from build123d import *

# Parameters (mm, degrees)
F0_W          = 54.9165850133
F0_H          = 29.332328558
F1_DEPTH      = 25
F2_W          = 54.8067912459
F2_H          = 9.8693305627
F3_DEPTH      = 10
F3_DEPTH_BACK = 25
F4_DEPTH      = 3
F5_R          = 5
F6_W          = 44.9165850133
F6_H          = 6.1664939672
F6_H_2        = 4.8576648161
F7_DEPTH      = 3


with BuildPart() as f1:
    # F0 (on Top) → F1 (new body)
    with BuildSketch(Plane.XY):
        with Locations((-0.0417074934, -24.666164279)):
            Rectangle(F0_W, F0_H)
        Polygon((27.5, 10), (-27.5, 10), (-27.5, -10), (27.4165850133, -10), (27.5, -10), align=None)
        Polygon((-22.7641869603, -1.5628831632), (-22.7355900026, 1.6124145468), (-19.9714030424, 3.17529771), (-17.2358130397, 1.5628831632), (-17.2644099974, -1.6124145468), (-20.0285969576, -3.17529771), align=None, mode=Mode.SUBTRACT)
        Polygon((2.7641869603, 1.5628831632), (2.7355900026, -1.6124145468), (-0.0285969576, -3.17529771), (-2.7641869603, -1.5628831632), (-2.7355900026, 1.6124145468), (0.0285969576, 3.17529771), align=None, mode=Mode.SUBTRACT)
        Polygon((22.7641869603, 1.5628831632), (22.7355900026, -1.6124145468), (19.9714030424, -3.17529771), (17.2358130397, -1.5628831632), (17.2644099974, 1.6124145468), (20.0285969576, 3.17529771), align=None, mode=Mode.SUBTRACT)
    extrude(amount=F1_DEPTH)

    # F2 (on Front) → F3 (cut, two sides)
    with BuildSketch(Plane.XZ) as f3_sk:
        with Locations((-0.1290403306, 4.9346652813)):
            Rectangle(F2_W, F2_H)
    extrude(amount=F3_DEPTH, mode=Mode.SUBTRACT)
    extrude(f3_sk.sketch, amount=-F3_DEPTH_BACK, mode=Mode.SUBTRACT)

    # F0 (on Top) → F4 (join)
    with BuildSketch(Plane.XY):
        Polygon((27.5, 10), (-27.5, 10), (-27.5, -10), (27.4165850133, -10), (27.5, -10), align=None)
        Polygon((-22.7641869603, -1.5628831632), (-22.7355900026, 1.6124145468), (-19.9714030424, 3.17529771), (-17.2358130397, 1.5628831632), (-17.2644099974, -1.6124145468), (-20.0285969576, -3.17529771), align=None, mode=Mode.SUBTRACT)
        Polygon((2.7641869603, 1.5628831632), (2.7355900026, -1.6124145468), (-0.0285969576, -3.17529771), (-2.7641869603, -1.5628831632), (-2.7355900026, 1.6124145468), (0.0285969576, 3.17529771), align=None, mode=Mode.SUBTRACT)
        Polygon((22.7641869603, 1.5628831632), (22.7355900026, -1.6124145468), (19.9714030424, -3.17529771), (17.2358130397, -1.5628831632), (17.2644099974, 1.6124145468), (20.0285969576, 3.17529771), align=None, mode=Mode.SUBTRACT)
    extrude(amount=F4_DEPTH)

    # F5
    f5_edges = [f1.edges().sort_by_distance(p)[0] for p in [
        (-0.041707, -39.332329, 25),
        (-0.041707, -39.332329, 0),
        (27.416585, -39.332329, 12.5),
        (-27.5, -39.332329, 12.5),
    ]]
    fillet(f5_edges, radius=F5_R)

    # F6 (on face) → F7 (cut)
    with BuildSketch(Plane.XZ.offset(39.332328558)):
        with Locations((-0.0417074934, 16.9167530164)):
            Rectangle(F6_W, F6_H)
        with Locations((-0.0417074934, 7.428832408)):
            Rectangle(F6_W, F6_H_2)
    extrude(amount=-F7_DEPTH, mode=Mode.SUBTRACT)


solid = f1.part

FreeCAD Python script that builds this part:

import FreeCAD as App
import Part
import Sketcher

V = App.Vector


def edges_at(feature, points):
    """Names of the edges that pass closest to the given points."""
    edges = feature.Shape.Edges
    near = lambda p: min(range(len(edges)), key=lambda i: edges[i].distToShape(Part.Vertex(*p))[0])
    return sorted({f"Edge{near(p) + 1}" for p in points})

doc = App.newDocument("Part")
params = doc.addObject("Spreadsheet::Sheet", "Params")
for row, (alias, value) in enumerate([
    ("sketch1_width", "55 mm"),
    ("sketch1_height", "20 mm"),
    ("pad1_length", "25 mm"),
    ("pocket1_length", "10 mm"),
    ("pocket1_length2", "25 mm"),
    ("sketch3_width", "55 mm"),
    ("sketch3_height", "20 mm"),
    ("pad2_length", "3 mm"),
    ("fillet_radius", "5 mm"),
    ("pocket2_length", "3 mm"),
], start=1):
    params.set(f"A{row}", alias)
    params.set(f"B{row}", "=" + value)
    params.setAlias(f"B{row}", alias)

body = doc.addObject("PartDesign::Body", "Body")

# Sketch on XY plane
sketch1 = body.newObject("Sketcher::SketchObject", "Sketch")
sketch1.AttachmentSupport = (doc.getObject("XY_Plane"), [""])
sketch1.MapMode = "FlatFace"
sketch1.addGeometry([
    Part.LineSegment(V(-27.5, -10, 0), V(-27.5, -39.33, 0)),  # 0
    Part.LineSegment(V(-27.5, -39.33, 0), V(27.42, -39.33, 0)),  # 1
    Part.LineSegment(V(27.42, -39.33, 0), V(27.42, -10, 0)),  # 2
    Part.LineSegment(V(27.42, -10, 0), V(27.5, -10, 0)),  # 3
    Part.LineSegment(V(27.5, -10, 0), V(27.5, 10, 0)),  # 4
    Part.LineSegment(V(27.5, 10, 0), V(-27.5, 10, 0)),  # 5
    Part.LineSegment(V(-27.5, 10, 0), V(-27.5, -10, 0)),  # 6
    Part.LineSegment(V(-20.03, -3.18, 0), V(-22.76, -1.56, 0)),  # 7
    Part.LineSegment(V(-22.76, -1.56, 0), V(-22.74, 1.61, 0)),  # 8
    Part.LineSegment(V(-22.74, 1.61, 0), V(-19.97, 3.18, 0)),  # 9
    Part.LineSegment(V(-19.97, 3.18, 0), V(-17.24, 1.56, 0)),  # 10
    Part.LineSegment(V(-17.24, 1.56, 0), V(-17.26, -1.61, 0)),  # 11
    Part.LineSegment(V(-17.26, -1.61, 0), V(-20.03, -3.18, 0)),  # 12
    Part.LineSegment(V(0.03, 3.18, 0), V(2.76, 1.56, 0)),  # 13
    Part.LineSegment(V(2.76, 1.56, 0), V(2.74, -1.61, 0)),  # 14
    Part.LineSegment(V(2.74, -1.61, 0), V(-0.03, -3.18, 0)),  # 15
    Part.LineSegment(V(-0.03, -3.18, 0), V(-2.76, -1.56, 0)),  # 16
    Part.LineSegment(V(-2.76, -1.56, 0), V(-2.74, 1.61, 0)),  # 17
    Part.LineSegment(V(-2.74, 1.61, 0), V(0.03, 3.18, 0)),  # 18
    Part.LineSegment(V(20.03, 3.18, 0), V(22.76, 1.56, 0)),  # 19
    Part.LineSegment(V(22.76, 1.56, 0), V(22.74, -1.61, 0)),  # 20
    Part.LineSegment(V(22.74, -1.61, 0), V(19.97, -3.18, 0)),  # 21
    Part.LineSegment(V(19.97, -3.18, 0), V(17.24, -1.56, 0)),  # 22
    Part.LineSegment(V(17.24, -1.56, 0), V(17.26, 1.61, 0)),  # 23
    Part.LineSegment(V(17.26, 1.61, 0), V(20.03, 3.18, 0)),  # 24
], False)
sketch1.addConstraint([
    Sketcher.Constraint("Coincident", 0, 2, 1, 1),
    Sketcher.Constraint("Coincident", 1, 2, 2, 1),
    Sketcher.Constraint("Coincident", 2, 2, 3, 1),
    Sketcher.Constraint("Coincident", 3, 2, 4, 1),
    Sketcher.Constraint("Coincident", 4, 2, 5, 1),
    Sketcher.Constraint("Coincident", 5, 2, 6, 1),
    Sketcher.Constraint("Coincident", 6, 2, 0, 1),
    Sketcher.Constraint("Coincident", 7, 2, 8, 1),
    Sketcher.Constraint("Coincident", 8, 2, 9, 1),
    Sketcher.Constraint("Coincident", 9, 2, 10, 1),
    Sketcher.Constraint("Coincident", 10, 2, 11, 1),
    Sketcher.Constraint("Coincident", 11, 2, 12, 1),
    Sketcher.Constraint("Coincident", 12, 2, 7, 1),
    Sketcher.Constraint("Coincident", 13, 2, 14, 1),
    Sketcher.Constraint("Coincident", 14, 2, 15, 1),
    Sketcher.Constraint("Coincident", 15, 2, 16, 1),
    Sketcher.Constraint("Coincident", 16, 2, 17, 1),
    Sketcher.Constraint("Coincident", 17, 2, 18, 1),
    Sketcher.Constraint("Coincident", 18, 2, 13, 1),
    Sketcher.Constraint("Coincident", 19, 2, 20, 1),
    Sketcher.Constraint("Coincident", 20, 2, 21, 1),
    Sketcher.Constraint("Coincident", 21, 2, 22, 1),
    Sketcher.Constraint("Coincident", 22, 2, 23, 1),
    Sketcher.Constraint("Coincident", 23, 2, 24, 1),
    Sketcher.Constraint("Coincident", 24, 2, 19, 1),
    Sketcher.Constraint("Vertical", 0),
    Sketcher.Constraint("Horizontal", 1),
    Sketcher.Constraint("Vertical", 2),
    Sketcher.Constraint("Horizontal", 3),
    Sketcher.Constraint("Vertical", 4),
    Sketcher.Constraint("Horizontal", 5),
    Sketcher.Constraint("Vertical", 6),
    Sketcher.Constraint("Symmetric", 3, 2, 5, 2, -1, 1),
    Sketcher.Constraint("Symmetric", 13, 2, 16, 2, -1, 1),
    Sketcher.Constraint("Symmetric", 14, 2, 17, 2, -1, 1),
    Sketcher.Constraint("Symmetric", 15, 2, 18, 2, -1, 1),
    Sketcher.Constraint("Symmetric", 7, 2, 19, 2, -1, 1),
    Sketcher.Constraint("Symmetric", 8, 2, 20, 2, -1, 1),
    Sketcher.Constraint("Symmetric", 9, 2, 21, 2, -1, 1),
    Sketcher.Constraint("Symmetric", 10, 2, 22, 2, -1, 1),
    Sketcher.Constraint("Symmetric", 11, 2, 23, 2, -1, 1),
    Sketcher.Constraint("Symmetric", 12, 2, 24, 2, -1, 1),
    Sketcher.Constraint("Parallel", 7, 10),
    Sketcher.Constraint("Parallel", 8, 11),
    Sketcher.Constraint("Parallel", 9, 12),
    Sketcher.Constraint("Parallel", 10, 13),
    Sketcher.Constraint("Parallel", 11, 14),
    Sketcher.Constraint("Parallel", 12, 15),
    Sketcher.Constraint("Horizontal", 3, 2, 6, 2),
    Sketcher.Constraint("Horizontal", 10, 2, 13, 2),
    Sketcher.Constraint("Horizontal", 11, 2, 14, 2),
    Sketcher.Constraint("Horizontal", 12, 2, 15, 2),
    Sketcher.Constraint("Horizontal", 7, 2, 16, 2),
    Sketcher.Constraint("Horizontal", 8, 2, 17, 2),
    Sketcher.Constraint("Equal", 7, 8),
    Sketcher.Constraint("Equal", 8, 9),
    Sketcher.Constraint("DistanceX", 5, 2, 5, 1, 55.0),
    Sketcher.Constraint("DistanceY", 4, 1, 4, 2, 20.0),
    Sketcher.Constraint("DistanceX", 10, 2, 13, 2, 20.0),
    Sketcher.Constraint("DistanceY", 0, 2, 0, 1, 29.332329),
    Sketcher.Constraint("DistanceX", 19, 2, 2, 2, 4.652398),
    Sketcher.Constraint("DistanceX", 1, 1, 1, 2, 54.916585),
    Sketcher.Constraint("DistanceX", 8, 2, -1, 1, 22.73559),
    Sketcher.Constraint("DistanceY", 7, 2, 9, 2, 4.738181),
    Sketcher.Constraint("DistanceX", 9, 2, 10, 2, 2.73559),
])
sketch1.setExpression("Constraints[56]", "Params.sketch1_width")
sketch1.setExpression("Constraints[57]", "Params.sketch1_height")
pad1 = body.newObject("PartDesign::Pad", "Pad")
pad1.Profile = sketch1
pad1.setExpression("Length", "Params.pad1_length")

# Sketch on XZ plane
sketch2 = body.newObject("Sketcher::SketchObject", "Sketch001")
sketch2.AttachmentSupport = (doc.getObject("XZ_Plane"), [""])
sketch2.MapMode = "FlatFace"
sketch2.addGeometry([
    Part.LineSegment(V(-28, 10, 0), V(-28, 0, 0)),
    Part.LineSegment(V(-28, 0, 0), V(27, 0, 0)),
    Part.LineSegment(V(27, 0, 0), V(27, 10, 0)),
    Part.LineSegment(V(27, 10, 0), V(-28, 10, 0)),
], False)
sketch2.addConstraint([
    Sketcher.Constraint("Coincident", 0, 2, 1, 1),
    Sketcher.Constraint("Coincident", 1, 2, 2, 1),
    Sketcher.Constraint("Coincident", 2, 2, 3, 1),
    Sketcher.Constraint("Coincident", 3, 2, 0, 1),
    Sketcher.Constraint("Vertical", 0),
    Sketcher.Constraint("Horizontal", 1),
    Sketcher.Constraint("Vertical", 2),
    Sketcher.Constraint("Horizontal", 3),
    Sketcher.Constraint("PointOnObject", 0, 2, -1),
    Sketcher.Constraint("DistanceX", 1, 1, 1, 2, 54.806791),
    Sketcher.Constraint("DistanceY", 0, 2, 0, 1, 9.869331),
    Sketcher.Constraint("DistanceX", 0, 2, -1, 1, 27.532436),
])
pocket1 = body.newObject("PartDesign::Pocket", "Pocket")
pocket1.Profile = sketch2
pocket1.Type = "TwoLengths"
pocket1.setExpression("Length", "Params.pocket1_length")
pocket1.setExpression("Length2", "Params.pocket1_length2")
pocket1.Reversed = True

# Sketch on XY plane
sketch3 = body.newObject("Sketcher::SketchObject", "Sketch002")
sketch3.AttachmentSupport = (doc.getObject("XY_Plane"), [""])
sketch3.MapMode = "FlatFace"
sketch3.addGeometry([
    Part.LineSegment(V(27.5, 10, 0), V(-27.5, 10, 0)),  # 0
    Part.LineSegment(V(-27.5, 10, 0), V(-27.5, -10, 0)),  # 1
    Part.LineSegment(V(-27.5, -10, 0), V(27.5, -10, 0)),  # 2
    Part.LineSegment(V(27.5, -10, 0), V(27.5, 10, 0)),  # 3
    Part.LineSegment(V(-20, -3.2, 0), V(-22.8, -1.6, 0)),  # 4
    Part.LineSegment(V(-22.8, -1.6, 0), V(-22.7, 1.6, 0)),  # 5
    Part.LineSegment(V(-22.7, 1.6, 0), V(-20, 3.2, 0)),  # 6
    Part.LineSegment(V(-20, 3.2, 0), V(-17.2, 1.6, 0)),  # 7
    Part.LineSegment(V(-17.2, 1.6, 0), V(-17.3, -1.6, 0)),  # 8
    Part.LineSegment(V(-17.3, -1.6, 0), V(-20, -3.2, 0)),  # 9
    Part.LineSegment(V(0, 3.2, 0), V(2.8, 1.6, 0)),  # 10
    Part.LineSegment(V(2.8, 1.6, 0), V(2.7, -1.6, 0)),  # 11
    Part.LineSegment(V(2.7, -1.6, 0), V(0, -3.2, 0)),  # 12
    Part.LineSegment(V(0, -3.2, 0), V(-2.8, -1.6, 0)),  # 13
    Part.LineSegment(V(-2.8, -1.6, 0), V(-2.7, 1.6, 0)),  # 14
    Part.LineSegment(V(-2.7, 1.6, 0), V(0, 3.2, 0)),  # 15
    Part.LineSegment(V(20, 3.2, 0), V(22.8, 1.6, 0)),  # 16
    Part.LineSegment(V(22.8, 1.6, 0), V(22.7, -1.6, 0)),  # 17
    Part.LineSegment(V(22.7, -1.6, 0), V(20, -3.2, 0)),  # 18
    Part.LineSegment(V(20, -3.2, 0), V(17.2, -1.6, 0)),  # 19
    Part.LineSegment(V(17.2, -1.6, 0), V(17.3, 1.6, 0)),  # 20
    Part.LineSegment(V(17.3, 1.6, 0), V(20, 3.2, 0)),  # 21
], False)
sketch3.addConstraint([
    Sketcher.Constraint("Coincident", 0, 2, 1, 1),
    Sketcher.Constraint("Coincident", 1, 2, 2, 1),
    Sketcher.Constraint("Coincident", 2, 2, 3, 1),
    Sketcher.Constraint("Coincident", 3, 2, 0, 1),
    Sketcher.Constraint("Coincident", 4, 2, 5, 1),
    Sketcher.Constraint("Coincident", 5, 2, 6, 1),
    Sketcher.Constraint("Coincident", 6, 2, 7, 1),
    Sketcher.Constraint("Coincident", 7, 2, 8, 1),
    Sketcher.Constraint("Coincident", 8, 2, 9, 1),
    Sketcher.Constraint("Coincident", 9, 2, 4, 1),
    Sketcher.Constraint("Coincident", 10, 2, 11, 1),
    Sketcher.Constraint("Coincident", 11, 2, 12, 1),
    Sketcher.Constraint("Coincident", 12, 2, 13, 1),
    Sketcher.Constraint("Coincident", 13, 2, 14, 1),
    Sketcher.Constraint("Coincident", 14, 2, 15, 1),
    Sketcher.Constraint("Coincident", 15, 2, 10, 1),
    Sketcher.Constraint("Coincident", 16, 2, 17, 1),
    Sketcher.Constraint("Coincident", 17, 2, 18, 1),
    Sketcher.Constraint("Coincident", 18, 2, 19, 1),
    Sketcher.Constraint("Coincident", 19, 2, 20, 1),
    Sketcher.Constraint("Coincident", 20, 2, 21, 1),
    Sketcher.Constraint("Coincident", 21, 2, 16, 1),
    Sketcher.Constraint("Horizontal", 0),
    Sketcher.Constraint("Vertical", 1),
    Sketcher.Constraint("Horizontal", 2),
    Sketcher.Constraint("Vertical", 3),
    Sketcher.Constraint("Symmetric", 0, 2, 2, 2, -1, 1),
    Sketcher.Constraint("Symmetric", 10, 2, 13, 2, -1, 1),
    Sketcher.Constraint("Symmetric", 11, 2, 14, 2, -1, 1),
    Sketcher.Constraint("Symmetric", 12, 2, 15, 2, -1, 1),
    Sketcher.Constraint("Symmetric", 4, 2, 16, 2, -1, 1),
    Sketcher.Constraint("Symmetric", 5, 2, 17, 2, -1, 1),
    Sketcher.Constraint("Symmetric", 6, 2, 18, 2, -1, 1),
    Sketcher.Constraint("Symmetric", 7, 2, 19, 2, -1, 1),
    Sketcher.Constraint("Symmetric", 8, 2, 20, 2, -1, 1),
    Sketcher.Constraint("Symmetric", 9, 2, 21, 2, -1, 1),
    Sketcher.Constraint("Parallel", 4, 7),
    Sketcher.Constraint("Parallel", 5, 8),
    Sketcher.Constraint("Parallel", 6, 9),
    Sketcher.Constraint("Parallel", 7, 10),
    Sketcher.Constraint("Parallel", 8, 11),
    Sketcher.Constraint("Parallel", 9, 12),
    Sketcher.Constraint("Horizontal", 7, 2, 10, 2),
    Sketcher.Constraint("Horizontal", 8, 2, 11, 2),
    Sketcher.Constraint("Horizontal", 9, 2, 12, 2),
    Sketcher.Constraint("Horizontal", 4, 2, 13, 2),
    Sketcher.Constraint("Horizontal", 5, 2, 14, 2),
    Sketcher.Constraint("Equal", 4, 5),
    Sketcher.Constraint("Equal", 5, 6),
    Sketcher.Constraint("DistanceX", 0, 2, 0, 1, 55.0),
    Sketcher.Constraint("DistanceY", 1, 2, 1, 1, 20.0),
    Sketcher.Constraint("DistanceX", 7, 2, 10, 2, 20.0),
    Sketcher.Constraint("DistanceX", 5, 2, -1, 1, 22.73559),
    Sketcher.Constraint("DistanceY", 4, 2, 6, 2, 4.738181),
    Sketcher.Constraint("DistanceX", 6, 2, 7, 2, 2.73559),
    Sketcher.Constraint("DistanceY", 7, 2, 5, 2, 0.049531),
])
sketch3.setExpression("Constraints[49]", "Params.sketch3_width")
sketch3.setExpression("Constraints[50]", "Params.sketch3_height")
pad2 = body.newObject("PartDesign::Pad", "Pad001")
pad2.Profile = sketch3
pad2.setExpression("Length", "Params.pad2_length")
doc.recompute()

fillet = body.newObject("PartDesign::Fillet", "Fillet")
fillet.Base = (pad2, edges_at(pad2, [
    (-0.042, -39.332, 25),
    (-0.042, -39.332, 0),
    (27.417, -39.332, 12.5),
    (-27.5, -39.332, 12.5),
]))
fillet.setExpression("Radius", "Params.fillet_radius")

# Sketch on XZ plane
sketch4 = body.newObject("Sketcher::SketchObject", "Sketch003")
sketch4.AttachmentSupport = (doc.getObject("XZ_Plane"), [""])
sketch4.MapMode = "FlatFace"
sketch4.AttachmentOffset = App.Placement(V(0, 0, 39.332329), App.Rotation())
sketch4.addGeometry([
    Part.LineSegment(V(-22.5, 20, 0), V(-22.5, 13.8, 0)),  # 0
    Part.LineSegment(V(-22.5, 13.8, 0), V(22.4, 13.8, 0)),  # 1
    Part.LineSegment(V(22.4, 13.8, 0), V(22.4, 20, 0)),  # 2
    Part.LineSegment(V(22.4, 20, 0), V(-22.5, 20, 0)),  # 3
    Part.LineSegment(V(-22.5, 9.9, 0), V(-22.5, 5, 0)),  # 4
    Part.LineSegment(V(-22.5, 5, 0), V(22.4, 5, 0)),  # 5
    Part.LineSegment(V(22.4, 5, 0), V(22.4, 9.9, 0)),  # 6
    Part.LineSegment(V(22.4, 9.9, 0), V(-22.5, 9.9, 0)),  # 7
], False)
sketch4.addConstraint([
    Sketcher.Constraint("Coincident", 0, 2, 1, 1),
    Sketcher.Constraint("Coincident", 1, 2, 2, 1),
    Sketcher.Constraint("Coincident", 2, 2, 3, 1),
    Sketcher.Constraint("Coincident", 3, 2, 0, 1),
    Sketcher.Constraint("Coincident", 4, 2, 5, 1),
    Sketcher.Constraint("Coincident", 5, 2, 6, 1),
    Sketcher.Constraint("Coincident", 6, 2, 7, 1),
    Sketcher.Constraint("Coincident", 7, 2, 4, 1),
    Sketcher.Constraint("Vertical", 0),
    Sketcher.Constraint("Horizontal", 1),
    Sketcher.Constraint("Vertical", 2),
    Sketcher.Constraint("Horizontal", 3),
    Sketcher.Constraint("Vertical", 4),
    Sketcher.Constraint("Horizontal", 5),
    Sketcher.Constraint("Vertical", 6),
    Sketcher.Constraint("Horizontal", 7),
    Sketcher.Constraint("Vertical", 3, 2, 4, 2),
    Sketcher.Constraint("Vertical", 2, 2, 5, 2),
    Sketcher.Constraint("DistanceY", -1, 1, 2, 2, 20.0),
    Sketcher.Constraint("DistanceY", -1, 1, 4, 2, 5.0),
    Sketcher.Constraint("DistanceX", 0, 2, -1, 1, 22.5),
    Sketcher.Constraint("DistanceX", 1, 1, 1, 2, 44.916585),
    Sketcher.Constraint("DistanceY", 0, 2, 0, 1, 6.166494),
    Sketcher.Constraint("DistanceY", 4, 2, 4, 1, 4.857665),
])
pocket2 = body.newObject("PartDesign::Pocket", "Pocket001")
pocket2.Profile = sketch4
pocket2.setExpression("Length", "Params.pocket2_length")

doc.recompute()
